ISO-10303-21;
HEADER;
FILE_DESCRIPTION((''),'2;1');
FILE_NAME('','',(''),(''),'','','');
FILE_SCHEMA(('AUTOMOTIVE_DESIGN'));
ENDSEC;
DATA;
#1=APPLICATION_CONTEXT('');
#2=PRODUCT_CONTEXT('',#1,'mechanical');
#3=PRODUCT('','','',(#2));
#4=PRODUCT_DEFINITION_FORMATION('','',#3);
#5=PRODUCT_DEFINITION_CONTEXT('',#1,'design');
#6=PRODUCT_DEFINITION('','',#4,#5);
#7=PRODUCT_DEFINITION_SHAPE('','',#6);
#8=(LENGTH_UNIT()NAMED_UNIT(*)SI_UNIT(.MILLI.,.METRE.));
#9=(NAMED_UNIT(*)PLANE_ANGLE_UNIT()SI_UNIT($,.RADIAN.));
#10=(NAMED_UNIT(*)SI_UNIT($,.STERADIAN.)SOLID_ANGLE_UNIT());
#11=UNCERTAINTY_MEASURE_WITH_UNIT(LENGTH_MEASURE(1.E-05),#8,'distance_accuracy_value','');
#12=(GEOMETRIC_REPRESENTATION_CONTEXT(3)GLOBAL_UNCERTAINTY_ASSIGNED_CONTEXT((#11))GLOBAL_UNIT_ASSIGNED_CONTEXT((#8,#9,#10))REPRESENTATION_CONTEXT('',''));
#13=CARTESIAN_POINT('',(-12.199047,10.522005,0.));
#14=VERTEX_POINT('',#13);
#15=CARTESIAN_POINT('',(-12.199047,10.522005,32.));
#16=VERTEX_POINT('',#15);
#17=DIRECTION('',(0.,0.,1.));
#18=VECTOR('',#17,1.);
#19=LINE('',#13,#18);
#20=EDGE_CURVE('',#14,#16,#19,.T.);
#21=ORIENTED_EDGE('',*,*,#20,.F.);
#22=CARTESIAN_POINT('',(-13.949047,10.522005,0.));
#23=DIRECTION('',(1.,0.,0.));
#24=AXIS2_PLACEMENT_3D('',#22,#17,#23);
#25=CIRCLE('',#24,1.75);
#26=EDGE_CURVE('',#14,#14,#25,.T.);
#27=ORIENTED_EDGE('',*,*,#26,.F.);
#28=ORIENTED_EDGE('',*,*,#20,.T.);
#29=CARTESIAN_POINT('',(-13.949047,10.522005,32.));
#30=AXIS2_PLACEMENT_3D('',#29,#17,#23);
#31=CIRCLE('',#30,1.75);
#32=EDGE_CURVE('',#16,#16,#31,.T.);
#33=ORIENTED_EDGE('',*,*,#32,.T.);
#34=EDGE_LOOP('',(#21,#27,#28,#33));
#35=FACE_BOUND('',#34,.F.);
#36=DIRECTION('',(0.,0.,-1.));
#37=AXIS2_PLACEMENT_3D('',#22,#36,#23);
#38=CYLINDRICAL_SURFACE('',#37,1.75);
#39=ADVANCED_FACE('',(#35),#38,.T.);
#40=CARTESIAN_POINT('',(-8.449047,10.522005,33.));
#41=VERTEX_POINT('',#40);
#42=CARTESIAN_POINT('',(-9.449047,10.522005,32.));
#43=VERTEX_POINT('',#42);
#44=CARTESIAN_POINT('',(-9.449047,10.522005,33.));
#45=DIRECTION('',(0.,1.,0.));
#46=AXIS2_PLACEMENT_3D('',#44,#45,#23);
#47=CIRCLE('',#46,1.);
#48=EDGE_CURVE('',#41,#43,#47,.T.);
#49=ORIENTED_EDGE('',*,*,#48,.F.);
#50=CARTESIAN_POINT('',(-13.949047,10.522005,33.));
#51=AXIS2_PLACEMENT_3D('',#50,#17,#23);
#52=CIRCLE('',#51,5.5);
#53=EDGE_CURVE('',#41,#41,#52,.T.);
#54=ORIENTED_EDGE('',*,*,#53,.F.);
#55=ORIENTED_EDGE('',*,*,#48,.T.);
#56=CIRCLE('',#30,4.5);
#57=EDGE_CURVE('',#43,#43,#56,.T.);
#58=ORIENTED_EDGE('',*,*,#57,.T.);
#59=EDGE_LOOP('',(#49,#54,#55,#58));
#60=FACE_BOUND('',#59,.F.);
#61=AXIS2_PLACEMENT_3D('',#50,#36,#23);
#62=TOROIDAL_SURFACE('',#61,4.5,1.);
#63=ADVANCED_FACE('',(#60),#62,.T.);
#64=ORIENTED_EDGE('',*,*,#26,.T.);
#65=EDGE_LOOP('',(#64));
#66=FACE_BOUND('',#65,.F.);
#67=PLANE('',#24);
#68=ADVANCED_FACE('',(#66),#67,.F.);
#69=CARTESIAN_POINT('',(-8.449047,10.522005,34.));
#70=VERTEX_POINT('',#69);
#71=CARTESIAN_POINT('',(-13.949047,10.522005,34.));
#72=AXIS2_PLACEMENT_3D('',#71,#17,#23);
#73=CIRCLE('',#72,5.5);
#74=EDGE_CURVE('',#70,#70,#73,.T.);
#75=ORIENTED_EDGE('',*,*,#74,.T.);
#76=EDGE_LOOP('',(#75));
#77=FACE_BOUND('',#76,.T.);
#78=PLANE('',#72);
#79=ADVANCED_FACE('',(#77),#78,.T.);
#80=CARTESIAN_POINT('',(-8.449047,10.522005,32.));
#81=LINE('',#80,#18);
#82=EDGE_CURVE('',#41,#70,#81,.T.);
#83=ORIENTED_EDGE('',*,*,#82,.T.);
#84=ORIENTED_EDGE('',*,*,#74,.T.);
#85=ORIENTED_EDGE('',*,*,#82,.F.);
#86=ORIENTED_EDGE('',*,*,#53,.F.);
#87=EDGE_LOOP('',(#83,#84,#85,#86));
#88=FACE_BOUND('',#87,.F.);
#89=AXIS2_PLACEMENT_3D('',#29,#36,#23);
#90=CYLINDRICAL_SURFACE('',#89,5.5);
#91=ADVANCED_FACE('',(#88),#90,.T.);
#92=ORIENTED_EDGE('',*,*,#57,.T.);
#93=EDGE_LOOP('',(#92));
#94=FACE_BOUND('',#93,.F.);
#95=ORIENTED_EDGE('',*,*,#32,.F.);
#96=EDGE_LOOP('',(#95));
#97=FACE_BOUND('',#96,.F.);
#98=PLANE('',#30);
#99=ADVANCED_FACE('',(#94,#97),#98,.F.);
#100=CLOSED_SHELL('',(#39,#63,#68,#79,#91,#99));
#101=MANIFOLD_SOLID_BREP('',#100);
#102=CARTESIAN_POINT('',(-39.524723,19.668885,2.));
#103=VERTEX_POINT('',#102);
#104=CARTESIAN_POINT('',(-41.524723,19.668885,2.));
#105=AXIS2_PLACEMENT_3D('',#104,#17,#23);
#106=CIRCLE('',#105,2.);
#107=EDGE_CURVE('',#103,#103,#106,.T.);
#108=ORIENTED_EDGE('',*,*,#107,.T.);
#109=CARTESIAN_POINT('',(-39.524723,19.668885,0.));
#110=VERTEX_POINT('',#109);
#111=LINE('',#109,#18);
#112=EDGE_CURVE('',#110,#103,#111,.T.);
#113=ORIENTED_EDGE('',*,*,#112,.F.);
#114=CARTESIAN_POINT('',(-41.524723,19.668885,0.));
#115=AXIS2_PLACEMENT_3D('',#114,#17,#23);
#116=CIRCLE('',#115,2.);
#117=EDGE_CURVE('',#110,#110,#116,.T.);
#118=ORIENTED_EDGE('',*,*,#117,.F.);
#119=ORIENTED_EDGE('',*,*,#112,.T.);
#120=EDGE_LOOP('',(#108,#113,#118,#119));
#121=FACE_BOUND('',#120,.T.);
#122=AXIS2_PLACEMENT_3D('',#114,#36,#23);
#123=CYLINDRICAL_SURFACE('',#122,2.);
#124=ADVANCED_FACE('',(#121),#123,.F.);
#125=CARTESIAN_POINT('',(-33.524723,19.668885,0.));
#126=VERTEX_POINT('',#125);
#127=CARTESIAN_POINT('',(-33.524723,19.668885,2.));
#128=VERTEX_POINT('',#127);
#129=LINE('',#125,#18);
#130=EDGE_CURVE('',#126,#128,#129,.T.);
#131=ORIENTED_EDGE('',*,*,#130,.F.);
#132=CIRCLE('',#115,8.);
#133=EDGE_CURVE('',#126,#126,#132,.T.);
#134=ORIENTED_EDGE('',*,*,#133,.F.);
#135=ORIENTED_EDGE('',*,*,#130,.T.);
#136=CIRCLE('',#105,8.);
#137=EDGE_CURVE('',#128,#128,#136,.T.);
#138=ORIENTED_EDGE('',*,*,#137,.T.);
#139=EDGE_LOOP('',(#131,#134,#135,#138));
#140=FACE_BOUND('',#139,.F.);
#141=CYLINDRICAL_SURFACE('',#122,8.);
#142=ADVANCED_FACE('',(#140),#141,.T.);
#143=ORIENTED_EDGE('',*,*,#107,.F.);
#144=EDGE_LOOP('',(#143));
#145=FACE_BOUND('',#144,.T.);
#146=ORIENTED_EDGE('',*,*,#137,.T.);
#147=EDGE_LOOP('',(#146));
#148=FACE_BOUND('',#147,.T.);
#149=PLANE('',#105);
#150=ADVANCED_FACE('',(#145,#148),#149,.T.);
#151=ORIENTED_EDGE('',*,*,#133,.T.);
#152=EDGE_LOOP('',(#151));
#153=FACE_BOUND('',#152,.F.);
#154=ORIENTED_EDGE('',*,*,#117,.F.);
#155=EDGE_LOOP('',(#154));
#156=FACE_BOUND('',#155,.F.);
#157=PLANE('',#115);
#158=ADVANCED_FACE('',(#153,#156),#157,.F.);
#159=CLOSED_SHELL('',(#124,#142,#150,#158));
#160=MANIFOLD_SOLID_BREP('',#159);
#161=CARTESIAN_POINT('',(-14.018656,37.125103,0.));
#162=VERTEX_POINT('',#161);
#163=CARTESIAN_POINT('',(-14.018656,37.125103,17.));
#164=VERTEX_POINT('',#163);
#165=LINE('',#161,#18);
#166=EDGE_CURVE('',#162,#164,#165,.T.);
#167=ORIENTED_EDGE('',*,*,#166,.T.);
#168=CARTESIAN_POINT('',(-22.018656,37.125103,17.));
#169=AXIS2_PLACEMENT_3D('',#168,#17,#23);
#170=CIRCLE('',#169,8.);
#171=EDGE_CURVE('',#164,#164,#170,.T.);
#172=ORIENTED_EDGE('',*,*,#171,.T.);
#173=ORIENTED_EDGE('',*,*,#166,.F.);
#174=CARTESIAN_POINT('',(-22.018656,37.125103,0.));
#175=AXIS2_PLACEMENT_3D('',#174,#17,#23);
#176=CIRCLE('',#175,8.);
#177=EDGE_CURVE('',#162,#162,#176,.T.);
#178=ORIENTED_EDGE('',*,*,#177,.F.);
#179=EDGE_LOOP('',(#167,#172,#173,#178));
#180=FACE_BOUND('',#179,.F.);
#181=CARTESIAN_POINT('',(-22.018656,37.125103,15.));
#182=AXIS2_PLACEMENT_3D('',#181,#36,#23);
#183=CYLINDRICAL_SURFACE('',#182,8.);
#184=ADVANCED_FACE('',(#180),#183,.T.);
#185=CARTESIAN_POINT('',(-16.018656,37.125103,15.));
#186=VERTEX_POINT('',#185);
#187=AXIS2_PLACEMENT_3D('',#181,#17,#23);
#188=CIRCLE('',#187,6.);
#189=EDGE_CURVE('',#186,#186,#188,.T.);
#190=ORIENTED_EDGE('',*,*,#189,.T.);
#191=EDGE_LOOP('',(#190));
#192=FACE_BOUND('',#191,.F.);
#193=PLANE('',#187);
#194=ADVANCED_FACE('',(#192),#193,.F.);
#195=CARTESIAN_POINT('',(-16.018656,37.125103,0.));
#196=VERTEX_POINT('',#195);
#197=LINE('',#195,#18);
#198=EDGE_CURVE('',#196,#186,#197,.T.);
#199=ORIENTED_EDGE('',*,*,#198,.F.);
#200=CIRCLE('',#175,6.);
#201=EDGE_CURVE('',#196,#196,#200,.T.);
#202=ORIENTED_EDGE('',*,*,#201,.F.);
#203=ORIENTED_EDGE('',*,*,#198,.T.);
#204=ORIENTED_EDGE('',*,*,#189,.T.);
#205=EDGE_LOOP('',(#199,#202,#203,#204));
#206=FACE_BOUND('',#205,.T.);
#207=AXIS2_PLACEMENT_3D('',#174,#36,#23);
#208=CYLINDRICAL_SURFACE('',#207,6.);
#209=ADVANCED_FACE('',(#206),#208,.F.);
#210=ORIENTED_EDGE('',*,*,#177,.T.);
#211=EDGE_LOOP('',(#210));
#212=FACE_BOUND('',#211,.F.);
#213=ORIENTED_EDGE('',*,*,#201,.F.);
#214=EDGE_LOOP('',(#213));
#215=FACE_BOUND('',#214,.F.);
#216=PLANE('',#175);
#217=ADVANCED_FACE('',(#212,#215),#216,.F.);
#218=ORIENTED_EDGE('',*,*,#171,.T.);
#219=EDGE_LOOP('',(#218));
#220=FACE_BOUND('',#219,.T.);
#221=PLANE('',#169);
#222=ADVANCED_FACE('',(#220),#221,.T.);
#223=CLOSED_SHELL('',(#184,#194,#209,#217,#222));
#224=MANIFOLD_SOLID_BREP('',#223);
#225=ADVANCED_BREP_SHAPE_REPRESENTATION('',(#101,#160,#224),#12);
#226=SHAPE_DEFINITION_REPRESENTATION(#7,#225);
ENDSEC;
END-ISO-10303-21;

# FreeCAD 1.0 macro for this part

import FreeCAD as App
import Part
import Sketcher

V = App.Vector


def edges_at(feature, points):
    """Names of the edges that pass closest to the given points."""
    edges = feature.Shape.Edges
    near = lambda p: min(range(len(edges)), key=lambda i: edges[i].distToShape(Part.Vertex(*p))[0])
    return sorted({f"Edge{near(p) + 1}" for p in points})

doc = App.newDocument("Part")
params = doc.addObject("Spreadsheet::Sheet", "Params")
for row, (alias, value) in enumerate([
    ("sketch1_diameter", "16 mm"),
    ("sketch1_diameter2", "4 mm"),
    ("pad1_length", "2 mm"),
    ("sketch2_diameter", "16 mm"),
    ("sketch2_diameter2", "12 mm"),
    ("pad2_length", "15 mm"),
    ("sketch3_diameter", "16 mm"),
    ("pad3_length", "2 mm"),
    ("sketch4_diameter", "3.5 mm"),
    ("pad4_length", "32 mm"),
    ("sketch5_diameter", "11 mm"),
    ("pad5_length", "2 mm"),
    ("fillet_radius", "1 mm"),
], start=1):
    params.set(f"A{row}", alias)
    params.set(f"B{row}", "=" + value)
    params.setAlias(f"B{row}", alias)

body = doc.addObject("PartDesign::Body", "Body")

# Sketch on XY plane
sketch1 = doc.addObject("Sketcher::SketchObject", "Sketch")
body.addObject(sketch1)
sketch1.AttachmentSupport = (doc.XY_Plane, [""])
sketch1.MapMode = "FlatFace"
sketch1.addGeometry([
    Part.Circle(V(-41.524723, 19.668885, 0), V(0, 0, 1), 8),
    Part.Circle(V(-41.524723, 19.668885, 0), V(0, 0, 1), 2),
], False)
sketch1.addConstraint([
    Sketcher.Constraint("Coincident", 1, 3, 0, 3),
    Sketcher.Constraint("Diameter", 0, 16.0),
    Sketcher.Constraint("Diameter", 1, 4.0),
    Sketcher.Constraint("DistanceX", 0, 3, -1, 1, 41.524723),
    Sketcher.Constraint("DistanceY", -1, 1, 0, 3, 19.668885),
])
sketch1.setExpression("Constraints[1]", "Params.sketch1_diameter")
sketch1.setExpression("Constraints[2]", "Params.sketch1_diameter2")
pad1 = doc.addObject("PartDesign::Pad", "Pad")
body.addObject(pad1)
pad1.Profile = sketch1
pad1.setExpression("Length", "Params.pad1_length")
body2 = doc.addObject("PartDesign::Body", "Body001")

# Sketch on XY plane
sketch2 = doc.addObject("Sketcher::SketchObject", "Sketch001")
body2.addObject(sketch2)
sketch2.AttachmentSupport = (doc.getObject("XY_Plane001"), [""])
sketch2.MapMode = "FlatFace"
sketch2.addGeometry([
    Part.Circle(V(-22.018656, 37.125103, 0), V(0, 0, 1), 8),
    Part.Circle(V(-22.018656, 37.125103, 0), V(0, 0, 1), 6),
], False)
sketch2.addConstraint([
    Sketcher.Constraint("Coincident", 1, 3, 0, 3),
    Sketcher.Constraint("Diameter", 0, 16.0),
    Sketcher.Constraint("Diameter", 1, 12.0),
    Sketcher.Constraint("DistanceX", 0, 3, -1, 1, 22.018656),
    Sketcher.Constraint("DistanceY", -1, 1, 0, 3, 37.125103),
])
sketch2.setExpression("Constraints[1]", "Params.sketch2_diameter")
sketch2.setExpression("Constraints[2]", "Params.sketch2_diameter2")
pad2 = doc.addObject("PartDesign::Pad", "Pad001")
body2.addObject(pad2)
pad2.Profile = sketch2
pad2.setExpression("Length", "Params.pad2_length")

# Sketch on XY plane
sketch3 = doc.addObject("Sketcher::SketchObject", "Sketch002")
body2.addObject(sketch3)
sketch3.AttachmentSupport = (doc.getObject("XY_Plane001"), [""])
sketch3.MapMode = "FlatFace"
sketch3.AttachmentOffset = App.Placement(V(0, 0, 15), App.Rotation())
sketch3.addGeometry(Part.Circle(V(-22.018656, 37.125103, 0), V(0, 0, 1), 8), False)
sketch3.addConstraint([
    Sketcher.Constraint("Diameter", 0, 16.0),
    Sketcher.Constraint("DistanceX", 0, 3, -1, 1, 22.018656),
    Sketcher.Constraint("DistanceY", -1, 1, 0, 3, 37.125103),
])
sketch3.setExpression("Constraints[0]", "Params.sketch3_diameter")
pad3 = doc.addObject("PartDesign::Pad", "Pad002")
body2.addObject(pad3)
pad3.Profile = sketch3
pad3.setExpression("Length", "Params.pad3_length")
body3 = doc.addObject("PartDesign::Body", "Body002")

# Sketch on XY plane
sketch4 = doc.addObject("Sketcher::SketchObject", "Sketch003")
body3.addObject(sketch4)
sketch4.AttachmentSupport = (doc.getObject("XY_Plane002"), [""])
sketch4.MapMode = "FlatFace"
sketch4.addGeometry(Part.Circle(V(-13.949047, 10.522005, 0), V(0, 0, 1), 1.75), False)
sketch4.addConstraint([
    Sketcher.Constraint("Diameter", 0, 3.5),
    Sketcher.Constraint("DistanceX", 0, 3, -1, 1, 13.949047),
    Sketcher.Constraint("DistanceY", -1, 1, 0, 3, 10.522005),
])
sketch4.setExpression("Constraints[0]", "Params.sketch4_diameter")
pad4 = doc.addObject("PartDesign::Pad", "Pad003")
body3.addObject(pad4)
pad4.Profile = sketch4
pad4.setExpression("Length", "Params.pad4_length")

# Sketch on XY plane
sketch5 = doc.addObject("Sketcher::SketchObject", "Sketch004")
body3.addObject(sketch5)
sketch5.AttachmentSupport = (doc.getObject("XY_Plane002"), [""])
sketch5.MapMode = "FlatFace"
sketch5.AttachmentOffset = App.Placement(V(0, 0, 32), App.Rotation())
sketch5.addGeometry(Part.Circle(V(-13.949047, 10.522005, 0), V(0, 0, 1), 5.5), False)
sketch5.addConstraint([
    Sketcher.Constraint("Diameter", 0, 11.0),
    Sketcher.Constraint("DistanceX", 0, 3, -1, 1, 13.949047),
    Sketcher.Constraint("DistanceY", -1, 1, 0, 3, 10.522005),
])
sketch5.setExpression("Constraints[0]", "Params.sketch5_diameter")
pad5 = doc.addObject("PartDesign::Pad", "Pad004")
body3.addObject(pad5)
pad5.Profile = sketch5
pad5.setExpression("Length", "Params.pad5_length")
doc.recompute()

fillet = doc.addObject("PartDesign::Fillet", "Fillet")
body3.addObject(fillet)
fillet.Base = (pad5, edges_at(pad5, [(-19.449, 10.522, 32)]))
fillet.setExpression("Radius", "Params.fillet_radius")

doc.recompute()
